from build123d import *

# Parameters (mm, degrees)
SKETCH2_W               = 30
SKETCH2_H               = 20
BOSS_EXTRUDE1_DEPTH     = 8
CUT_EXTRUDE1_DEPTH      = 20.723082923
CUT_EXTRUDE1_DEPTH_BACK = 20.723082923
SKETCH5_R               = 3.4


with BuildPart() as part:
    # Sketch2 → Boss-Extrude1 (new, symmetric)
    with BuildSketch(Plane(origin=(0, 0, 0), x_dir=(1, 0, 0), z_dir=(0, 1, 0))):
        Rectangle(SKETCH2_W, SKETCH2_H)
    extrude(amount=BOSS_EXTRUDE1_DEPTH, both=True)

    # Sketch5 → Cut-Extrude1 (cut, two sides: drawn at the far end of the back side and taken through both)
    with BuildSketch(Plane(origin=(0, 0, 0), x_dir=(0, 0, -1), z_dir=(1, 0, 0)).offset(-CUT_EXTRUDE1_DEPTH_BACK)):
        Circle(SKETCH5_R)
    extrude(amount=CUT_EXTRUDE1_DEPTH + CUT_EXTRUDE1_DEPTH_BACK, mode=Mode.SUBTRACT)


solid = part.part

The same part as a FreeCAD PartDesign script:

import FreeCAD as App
import Part
import Sketcher


def add_polygon(sketch, points):
    """Adds a closed chain of lines whose ends are joined by coincident constraints."""
    first, n = sketch.GeometryCount, len(points)
    for a, b in zip(points, points[1:] + points[:1]):
        sketch.addGeometry(Part.LineSegment(App.Vector(*a, 0), App.Vector(*b, 0)), False)
    for i in range(n):
        sketch.addConstraint(Sketcher.Constraint("Coincident", first + i, 2, first + (i + 1) % n, 1))

doc = App.newDocument("Part")
body = doc.addObject("PartDesign::Body", "Body")

# Sketch on XZ plane
sketch1 = body.newObject("Sketcher::SketchObject", "Sketch")
sketch1.AttachmentSupport = (doc.getObject("XZ_Plane"), [""])
sketch1.MapMode = "FlatFace"
add_polygon(sketch1, [(-15, -10), (-15, 10), (15, 10), (15, -10)])  # lines 0-3
sketch1.addConstraint([
    Sketcher.Constraint("Vertical", 0),
    Sketcher.Constraint("Horizontal", 1),
    Sketcher.Constraint("Vertical", 2),
    Sketcher.Constraint("Horizontal", 3),
    Sketcher.Constraint("Symmetric", 0, 2, 2, 2, -1, 1),
    Sketcher.Constraint("DistanceX", 1, 1, 1, 2, 30.0),
    Sketcher.Constraint("DistanceY", 0, 1, 0, 2, 20.0),
])
pad1 = body.newObject("PartDesign::Pad", "Pad")
pad1.Profile = sketch1
pad1.Length = 16
pad1.Midplane = True

# Sketch on YZ plane
sketch2 = body.newObject("Sketcher::SketchObject", "Sketch001")
sketch2.AttachmentSupport = (doc.getObject("YZ_Plane"), [""])
sketch2.MapMode = "FlatFace"
sketch2.addGeometry(Part.Circle(App.Vector(0, 0, 0), App.Vector(0, 0, 1), 3.4), False)
sketch2.addConstraint([
    Sketcher.Constraint("Coincident", 0, 3, -1, 1),
    Sketcher.Constraint("Diameter", 0, 6.8),
])
pocket1 = body.newObject("PartDesign::Pocket", "Pocket")
pocket1.Profile = sketch2
pocket1.Type = "ThroughAll"
pocket1.Midplane = True

doc.recompute()
